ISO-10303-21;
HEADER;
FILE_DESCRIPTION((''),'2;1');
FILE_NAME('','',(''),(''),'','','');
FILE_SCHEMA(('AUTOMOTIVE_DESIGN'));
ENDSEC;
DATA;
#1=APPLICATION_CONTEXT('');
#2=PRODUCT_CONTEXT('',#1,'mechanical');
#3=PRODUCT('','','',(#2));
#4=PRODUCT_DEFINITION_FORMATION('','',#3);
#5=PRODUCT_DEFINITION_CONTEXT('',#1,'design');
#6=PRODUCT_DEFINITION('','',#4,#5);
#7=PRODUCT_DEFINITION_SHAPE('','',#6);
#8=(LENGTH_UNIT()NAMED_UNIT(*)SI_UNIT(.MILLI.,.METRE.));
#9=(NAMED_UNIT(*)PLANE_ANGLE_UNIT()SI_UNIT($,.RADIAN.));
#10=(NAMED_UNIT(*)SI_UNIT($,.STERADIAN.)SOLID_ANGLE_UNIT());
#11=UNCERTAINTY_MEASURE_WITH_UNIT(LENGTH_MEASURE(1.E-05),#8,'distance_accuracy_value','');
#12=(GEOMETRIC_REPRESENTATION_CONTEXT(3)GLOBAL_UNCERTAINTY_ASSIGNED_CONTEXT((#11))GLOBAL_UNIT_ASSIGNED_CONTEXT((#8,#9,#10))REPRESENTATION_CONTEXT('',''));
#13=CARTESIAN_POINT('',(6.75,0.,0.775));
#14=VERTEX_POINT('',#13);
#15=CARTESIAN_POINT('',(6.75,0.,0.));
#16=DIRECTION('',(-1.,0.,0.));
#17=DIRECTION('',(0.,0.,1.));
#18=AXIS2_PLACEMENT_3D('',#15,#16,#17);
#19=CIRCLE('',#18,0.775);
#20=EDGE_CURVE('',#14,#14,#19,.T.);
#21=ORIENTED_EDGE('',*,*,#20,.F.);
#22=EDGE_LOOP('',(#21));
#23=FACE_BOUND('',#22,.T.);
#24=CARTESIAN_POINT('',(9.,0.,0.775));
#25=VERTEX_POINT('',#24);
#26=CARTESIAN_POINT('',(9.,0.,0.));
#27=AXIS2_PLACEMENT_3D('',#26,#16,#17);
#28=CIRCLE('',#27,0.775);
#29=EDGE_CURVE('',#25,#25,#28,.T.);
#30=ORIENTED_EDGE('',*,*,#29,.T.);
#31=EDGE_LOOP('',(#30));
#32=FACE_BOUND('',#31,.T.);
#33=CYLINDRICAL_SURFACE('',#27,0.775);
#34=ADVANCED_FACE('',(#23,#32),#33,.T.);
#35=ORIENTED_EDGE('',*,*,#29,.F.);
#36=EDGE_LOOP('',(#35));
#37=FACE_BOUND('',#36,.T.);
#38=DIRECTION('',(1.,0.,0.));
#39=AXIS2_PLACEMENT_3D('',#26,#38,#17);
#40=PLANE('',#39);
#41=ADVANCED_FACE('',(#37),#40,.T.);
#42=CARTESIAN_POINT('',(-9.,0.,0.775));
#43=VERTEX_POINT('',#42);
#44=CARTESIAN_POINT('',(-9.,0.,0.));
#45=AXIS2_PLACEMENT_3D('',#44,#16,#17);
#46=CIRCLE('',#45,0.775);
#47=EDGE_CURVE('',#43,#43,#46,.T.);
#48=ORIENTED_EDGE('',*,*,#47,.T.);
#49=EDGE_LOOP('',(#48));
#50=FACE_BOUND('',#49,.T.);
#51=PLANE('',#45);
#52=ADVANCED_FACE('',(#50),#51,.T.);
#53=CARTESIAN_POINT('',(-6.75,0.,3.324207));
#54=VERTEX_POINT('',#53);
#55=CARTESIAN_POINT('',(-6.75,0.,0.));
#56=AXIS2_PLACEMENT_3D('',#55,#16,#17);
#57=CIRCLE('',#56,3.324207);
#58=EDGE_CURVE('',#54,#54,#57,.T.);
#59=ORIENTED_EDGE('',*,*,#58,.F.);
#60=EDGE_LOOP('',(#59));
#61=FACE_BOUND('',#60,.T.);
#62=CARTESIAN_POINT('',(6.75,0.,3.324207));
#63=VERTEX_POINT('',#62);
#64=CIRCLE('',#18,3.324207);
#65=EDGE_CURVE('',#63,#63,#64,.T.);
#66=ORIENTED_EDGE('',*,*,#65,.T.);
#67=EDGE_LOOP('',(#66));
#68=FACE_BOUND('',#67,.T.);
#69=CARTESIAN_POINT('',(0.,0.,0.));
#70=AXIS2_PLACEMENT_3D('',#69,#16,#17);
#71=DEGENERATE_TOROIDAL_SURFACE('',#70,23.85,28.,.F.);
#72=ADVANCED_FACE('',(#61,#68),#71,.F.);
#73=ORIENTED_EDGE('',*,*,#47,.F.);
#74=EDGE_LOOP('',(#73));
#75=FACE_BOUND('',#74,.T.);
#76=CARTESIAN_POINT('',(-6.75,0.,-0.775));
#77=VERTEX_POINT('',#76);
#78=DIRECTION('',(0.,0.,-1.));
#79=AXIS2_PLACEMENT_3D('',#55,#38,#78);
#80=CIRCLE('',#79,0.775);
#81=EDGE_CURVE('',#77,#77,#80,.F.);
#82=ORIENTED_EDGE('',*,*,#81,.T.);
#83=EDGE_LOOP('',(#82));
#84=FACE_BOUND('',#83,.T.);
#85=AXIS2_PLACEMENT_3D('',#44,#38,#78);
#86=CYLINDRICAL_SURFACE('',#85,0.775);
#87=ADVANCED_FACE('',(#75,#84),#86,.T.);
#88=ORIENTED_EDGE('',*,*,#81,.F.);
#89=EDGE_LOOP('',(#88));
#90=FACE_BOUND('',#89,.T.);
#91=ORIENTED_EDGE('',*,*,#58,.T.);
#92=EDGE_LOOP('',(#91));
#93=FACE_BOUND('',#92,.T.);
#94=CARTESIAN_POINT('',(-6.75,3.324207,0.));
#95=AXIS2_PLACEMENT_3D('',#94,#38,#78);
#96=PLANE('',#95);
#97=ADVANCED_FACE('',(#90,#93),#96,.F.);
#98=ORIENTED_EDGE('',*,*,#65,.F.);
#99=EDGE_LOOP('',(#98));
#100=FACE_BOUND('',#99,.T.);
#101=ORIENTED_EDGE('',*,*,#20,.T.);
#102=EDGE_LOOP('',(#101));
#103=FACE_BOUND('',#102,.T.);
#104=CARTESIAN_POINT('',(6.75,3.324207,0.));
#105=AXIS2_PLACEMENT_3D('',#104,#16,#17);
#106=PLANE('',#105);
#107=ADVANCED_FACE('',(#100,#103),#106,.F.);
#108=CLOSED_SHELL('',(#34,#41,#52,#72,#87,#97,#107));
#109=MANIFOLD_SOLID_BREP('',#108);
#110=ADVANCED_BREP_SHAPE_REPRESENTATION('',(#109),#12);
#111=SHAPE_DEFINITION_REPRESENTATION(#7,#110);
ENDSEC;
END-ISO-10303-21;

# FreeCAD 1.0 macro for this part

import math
import FreeCAD as App
import Part
import Sketcher

doc = App.newDocument("Part")
params = doc.addObject("Spreadsheet::Sheet", "Params")
for row, (alias, value) in enumerate([
    ("sketch1_radius", "28 mm"),
    ("sketch1_width", "13.5 mm"),
    ("sketch2_diameter", "8.3 mm"),
    ("sketch3_diameter", "1.55 mm"),
    ("pad1_length", "2.25 mm"),
], start=1):
    params.set(f"A{row}", alias)
    params.set(f"B{row}", "=" + value)
    params.setAlias(f"B{row}", alias)

body = doc.addObject("PartDesign::Body", "Body")

# Sketch on XY plane
sketch1 = doc.addObject("Sketcher::SketchObject", "Sketch")
body.addObject(sketch1)
sketch1.AttachmentSupport = (doc.XY_Plane, [""])
sketch1.MapMode = "FlatFace"
sketch1.addGeometry([
    Part.LineSegment(App.Vector(-6.75, 0, 0), App.Vector(6.75, 0, 0)),
    Part.LineSegment(App.Vector(6.75, 0, 0), App.Vector(6.75, 3.324207, 0)),
    Part.ArcOfCircle(Part.Circle(App.Vector(0, -23.85, 0), App.Vector(0, 0, 1), 28), math.radians(76.050214), math.radians(103.949786)),
    Part.LineSegment(App.Vector(-6.75, 3.324207, 0), App.Vector(-6.75, 0, 0)),
], False)
sketch1.addConstraint([
    Sketcher.Constraint("Coincident", 0, 2, 1, 1),
    Sketcher.Constraint("Coincident", 1, 2, 2, 1),
    Sketcher.Constraint("Coincident", 2, 2, 3, 1),
    Sketcher.Constraint("Coincident", 3, 2, 0, 1),
    Sketcher.Constraint("Horizontal", 0),
    Sketcher.Constraint("Vertical", 1),
    Sketcher.Constraint("Vertical", 3),
    Sketcher.Constraint("Symmetric", 0, 2, 3, 2, -1, 1),
    Sketcher.Constraint("PointOnObject", 2, 3, -2),
    Sketcher.Constraint("Radius", 2, 28.0),
    Sketcher.Constraint("DistanceX", 0, 1, 0, 2, 13.5),
    Sketcher.Constraint("DistanceY", 2, 3, -1, 1, 23.85),
])
sketch1.setExpression("Constraints[9]", "Params.sketch1_radius")
sketch1.setExpression("Constraints[10]", "Params.sketch1_width")

# Sketch on YZ plane
sketch2 = doc.addObject("Sketcher::SketchObject", "Sketch001")
body.addObject(sketch2)
sketch2.AttachmentSupport = (doc.YZ_Plane, [""])
sketch2.MapMode = "FlatFace"
sketch2.addGeometry(Part.Circle(App.Vector(0, 0, 0), App.Vector(0, 0, 1), 4.15), False)
sketch2.addConstraint([
    Sketcher.Constraint("Coincident", 0, 3, -1, 1),
    Sketcher.Constraint("Diameter", 0, 8.3),
])
sketch2.setExpression("Constraints[1]", "Params.sketch2_diameter")
doc.recompute()

additivepipe = doc.addObject("PartDesign::AdditivePipe", "AdditivePipe")
body.addObject(additivepipe)
additivepipe.Profile = sketch1
additivepipe.Spine = (sketch2, ["Edge1"])

# Sketch on YZ plane
sketch3 = doc.addObject("Sketcher::SketchObject", "Sketch002")
body.addObject(sketch3)
sketch3.AttachmentSupport = (doc.YZ_Plane, [""])
sketch3.MapMode = "FlatFace"
sketch3.AttachmentOffset = App.Placement(App.Vector(0, 0, -6.75), App.Rotation())
sketch3.addGeometry(Part.Circle(App.Vector(0, 0, 0), App.Vector(0, 0, 1), 0.775), False)
sketch3.addConstraint([
    Sketcher.Constraint("Coincident", 0, 3, -1, 1),
    Sketcher.Constraint("Diameter", 0, 1.55),
])
sketch3.setExpression("Constraints[1]", "Params.sketch3_diameter")
pad1 = doc.addObject("PartDesign::Pad", "Pad")
body.addObject(pad1)
pad1.Profile = sketch3
pad1.setExpression("Length", "Params.pad1_length")
pad1.Reversed = True
doc.recompute()

mirrored = doc.addObject("PartDesign::Mirrored", "Mirrored")
body.addObject(mirrored)
mirrored.Originals = [pad1]
mirrored.MirrorPlane = (doc.YZ_Plane, [""])
body.Tip = mirrored

doc.recompute()
